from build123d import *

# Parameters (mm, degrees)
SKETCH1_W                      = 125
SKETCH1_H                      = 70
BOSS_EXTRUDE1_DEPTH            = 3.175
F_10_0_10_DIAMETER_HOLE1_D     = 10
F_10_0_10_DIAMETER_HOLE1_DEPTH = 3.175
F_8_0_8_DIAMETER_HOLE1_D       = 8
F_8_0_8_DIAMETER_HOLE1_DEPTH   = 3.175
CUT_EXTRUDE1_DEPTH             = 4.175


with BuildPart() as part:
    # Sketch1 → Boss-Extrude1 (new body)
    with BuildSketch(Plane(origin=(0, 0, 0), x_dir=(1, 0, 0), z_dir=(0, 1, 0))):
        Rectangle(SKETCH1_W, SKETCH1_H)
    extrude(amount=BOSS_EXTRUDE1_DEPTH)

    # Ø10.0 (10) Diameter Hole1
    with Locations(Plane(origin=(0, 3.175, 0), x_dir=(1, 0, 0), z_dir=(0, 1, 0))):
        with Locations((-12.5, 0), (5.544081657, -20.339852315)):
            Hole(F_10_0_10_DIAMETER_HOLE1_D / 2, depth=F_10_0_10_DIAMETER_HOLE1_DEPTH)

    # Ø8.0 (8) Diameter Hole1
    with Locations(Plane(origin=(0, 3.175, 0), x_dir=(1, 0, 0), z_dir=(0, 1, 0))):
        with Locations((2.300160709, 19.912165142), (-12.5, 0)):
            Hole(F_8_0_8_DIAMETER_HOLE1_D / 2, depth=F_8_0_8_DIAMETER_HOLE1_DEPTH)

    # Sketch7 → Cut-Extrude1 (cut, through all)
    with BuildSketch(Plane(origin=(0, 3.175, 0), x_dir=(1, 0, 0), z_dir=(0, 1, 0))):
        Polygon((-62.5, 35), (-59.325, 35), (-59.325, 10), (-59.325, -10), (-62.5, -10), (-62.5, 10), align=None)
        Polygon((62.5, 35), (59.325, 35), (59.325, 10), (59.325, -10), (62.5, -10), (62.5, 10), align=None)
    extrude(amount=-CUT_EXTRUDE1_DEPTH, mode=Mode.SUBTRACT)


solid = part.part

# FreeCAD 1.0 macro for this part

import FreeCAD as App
import Part
import Sketcher

doc = App.newDocument("Part")
body = doc.addObject("PartDesign::Body", "Body")

sketch1 = body.newObject("Sketcher::SketchObject", "Sketch")
sketch1.AttachmentSupport = (doc.getObject("XZ_Plane"), [""])
sketch1.MapMode = "FlatFace"
sketch1.addGeometry(Part.LineSegment(App.Vector(-62.5, -35, 0), App.Vector(-62.5, 35, 0)), False)
sketch1.addGeometry(Part.LineSegment(App.Vector(-62.5, 35, 0), App.Vector(62.5, 35, 0)), False)
sketch1.addGeometry(Part.LineSegment(App.Vector(62.5, 35, 0), App.Vector(62.5, -35, 0)), False)
sketch1.addGeometry(Part.LineSegment(App.Vector(62.5, -35, 0), App.Vector(-62.5, -35, 0)), False)
sketch1.addConstraint(Sketcher.Constraint("Coincident", 0, 2, 1, 1))
sketch1.addConstraint(Sketcher.Constraint("Coincident", 1, 2, 2, 1))
sketch1.addConstraint(Sketcher.Constraint("Coincident", 2, 2, 3, 1))
sketch1.addConstraint(Sketcher.Constraint("Coincident", 3, 2, 0, 1))
sketch1.addConstraint(Sketcher.Constraint("Vertical", 0))
sketch1.addConstraint(Sketcher.Constraint("Horizontal", 1))
sketch1.addConstraint(Sketcher.Constraint("Vertical", 2))
sketch1.addConstraint(Sketcher.Constraint("Horizontal", 3))
sketch1.addConstraint(Sketcher.Constraint("Symmetric", 0, 2, 2, 2, -1, 1))
sketch1.addConstraint(Sketcher.Constraint("DistanceX", 1, 1, 1, 2, 125.0))
sketch1.addConstraint(Sketcher.Constraint("DistanceY", 0, 1, 0, 2, 70.0))
pad1 = body.newObject("PartDesign::Pad", "Pad")
pad1.Profile = sketch1
pad1.Length = 3.175
pad1.Reversed = True

sketch2 = body.newObject("Sketcher::SketchObject", "Sketch001")
sketch2.AttachmentSupport = (doc.getObject("XZ_Plane"), [""])
sketch2.MapMode = "FlatFace"
sketch2.AttachmentOffset = App.Placement(App.Vector(0, 0, -3.175), App.Rotation())
sketch2.addGeometry(Part.Circle(App.Vector(-12.5, 0, 0), App.Vector(0, 0, 1), 5), False)
sketch2.addGeometry(Part.Circle(App.Vector(5.544082, 20.339852, 0), App.Vector(0, 0, 1), 5), False)
sketch2.addConstraint(Sketcher.Constraint("Equal", 0, 1))
sketch2.addConstraint(Sketcher.Constraint("PointOnObject", 0, 3, -1))
sketch2.addConstraint(Sketcher.Constraint("Diameter", 0, 10.0))
sketch2.addConstraint(Sketcher.Constraint("DistanceX", 0, 3, -1, 1, 12.5))
sketch2.addConstraint(Sketcher.Constraint("DistanceX", -1, 1, 1, 3, 5.544082))
sketch2.addConstraint(Sketcher.Constraint("DistanceY", -1, 1, 1, 3, 20.339852))
doc.recompute()
hole = body.newObject("PartDesign::Hole", "Hole")
hole.Profile = sketch2
hole.ThreadType = "None"
hole.Diameter = 10
hole.DepthType = "Dimension"
hole.Depth = 3.175
hole.DrillPoint = "Flat"
hole.Reversed = True

sketch3 = body.newObject("Sketcher::SketchObject", "Sketch002")
sketch3.AttachmentSupport = (doc.getObject("XZ_Plane"), [""])
sketch3.MapMode = "FlatFace"
sketch3.AttachmentOffset = App.Placement(App.Vector(0, 0, -3.175), App.Rotation())
sketch3.addGeometry(Part.Circle(App.Vector(2.300161, -19.912165, 0), App.Vector(0, 0, 1), 4), False)
sketch3.addGeometry(Part.Circle(App.Vector(-12.5, 0, 0), App.Vector(0, 0, 1), 4), False)
sketch3.addConstraint(Sketcher.Constraint("Equal", 0, 1))
sketch3.addConstraint(Sketcher.Constraint("PointOnObject", 1, 3, -1))
sketch3.addConstraint(Sketcher.Constraint("Diameter", 0, 8.0))
sketch3.addConstraint(Sketcher.Constraint("DistanceX", 1, 3, -1, 1, 12.5))
sketch3.addConstraint(Sketcher.Constraint("DistanceX", -1, 1, 0, 3, 2.300161))
sketch3.addConstraint(Sketcher.Constraint("DistanceY", 0, 3, -1, 1, 19.912165))
doc.recompute()
hole2 = body.newObject("PartDesign::Hole", "Hole001")
hole2.Profile = sketch3
hole2.ThreadType = "None"
hole2.Diameter = 8
hole2.DepthType = "Dimension"
hole2.Depth = 3.175
hole2.DrillPoint = "Flat"
hole2.Reversed = True

sketch4 = body.newObject("Sketcher::SketchObject", "Sketch003")
sketch4.AttachmentSupport = (doc.getObject("XZ_Plane"), [""])
sketch4.MapMode = "FlatFace"
sketch4.AttachmentOffset = App.Placement(App.Vector(0, 0, -3.175), App.Rotation())
sketch4.addGeometry(Part.LineSegment(App.Vector(-59.325, -35, 0), App.Vector(-62.5, -35, 0)), False)
sketch4.addGeometry(Part.LineSegment(App.Vector(-62.5, -35, 0), App.Vector(-62.5, 10, 0)), False)
sketch4.addGeometry(Part.LineSegment(App.Vector(-62.5, 10, 0), App.Vector(-59.325, 10, 0)), False)
sketch4.addGeometry(Part.LineSegment(App.Vector(-59.325, 10, 0), App.Vector(-59.325, -35, 0)), False)
sketch4.addGeometry(Part.LineSegment(App.Vector(62.5, -35, 0), App.Vector(59.325, -35, 0)), False)
sketch4.addGeometry(Part.LineSegment(App.Vector(59.325, -35, 0), App.Vector(59.325, 10, 0)), False)
sketch4.addGeometry(Part.LineSegment(App.Vector(59.325, 10, 0), App.Vector(62.5, 10, 0)), False)
sketch4.addGeometry(Part.LineSegment(App.Vector(62.5, 10, 0), App.Vector(62.5, -35, 0)), False)
sketch4.addConstraint(Sketcher.Constraint("Coincident", 0, 2, 1, 1))
sketch4.addConstraint(Sketcher.Constraint("Coincident", 1, 2, 2, 1))
sketch4.addConstraint(Sketcher.Constraint("Coincident", 2, 2, 3, 1))
sketch4.addConstraint(Sketcher.Constraint("Coincident", 3, 2, 0, 1))
sketch4.addConstraint(Sketcher.Constraint("Coincident", 4, 2, 5, 1))
sketch4.addConstraint(Sketcher.Constraint("Coincident", 5, 2, 6, 1))
sketch4.addConstraint(Sketcher.Constraint("Coincident", 6, 2, 7, 1))
sketch4.addConstraint(Sketcher.Constraint("Coincident", 7, 2, 4, 1))
sketch4.addConstraint(Sketcher.Constraint("Horizontal", 0))
sketch4.addConstraint(Sketcher.Constraint("Vertical", 1))
sketch4.addConstraint(Sketcher.Constraint("Horizontal", 2))
sketch4.addConstraint(Sketcher.Constraint("Vertical", 3))
sketch4.addConstraint(Sketcher.Constraint("Horizontal", 4))
sketch4.addConstraint(Sketcher.Constraint("Vertical", 5))
sketch4.addConstraint(Sketcher.Constraint("Horizontal", 6))
sketch4.addConstraint(Sketcher.Constraint("Vertical", 7))
sketch4.addConstraint(Sketcher.Constraint("Symmetric", 3, 2, 4, 2, -2))
sketch4.addConstraint(Sketcher.Constraint("Symmetric", 1, 2, 6, 2, -2))
sketch4.addConstraint(Sketcher.Constraint("DistanceY", 1, 1, 1, 2, 45.0))
sketch4.addConstraint(Sketcher.Constraint("DistanceY", 0, 2, -1, 1, 35.0))
sketch4.addConstraint(Sketcher.Constraint("DistanceX", 1, 2, 6, 2, 125.0))
sketch4.addConstraint(Sketcher.Constraint("DistanceX", 0, 2, 0, 1, 3.175))
pocket1 = body.newObject("PartDesign::Pocket", "Pocket")
pocket1.Profile = sketch4
pocket1.Type = "ThroughAll"
pocket1.Reversed = True

doc.recompute()
